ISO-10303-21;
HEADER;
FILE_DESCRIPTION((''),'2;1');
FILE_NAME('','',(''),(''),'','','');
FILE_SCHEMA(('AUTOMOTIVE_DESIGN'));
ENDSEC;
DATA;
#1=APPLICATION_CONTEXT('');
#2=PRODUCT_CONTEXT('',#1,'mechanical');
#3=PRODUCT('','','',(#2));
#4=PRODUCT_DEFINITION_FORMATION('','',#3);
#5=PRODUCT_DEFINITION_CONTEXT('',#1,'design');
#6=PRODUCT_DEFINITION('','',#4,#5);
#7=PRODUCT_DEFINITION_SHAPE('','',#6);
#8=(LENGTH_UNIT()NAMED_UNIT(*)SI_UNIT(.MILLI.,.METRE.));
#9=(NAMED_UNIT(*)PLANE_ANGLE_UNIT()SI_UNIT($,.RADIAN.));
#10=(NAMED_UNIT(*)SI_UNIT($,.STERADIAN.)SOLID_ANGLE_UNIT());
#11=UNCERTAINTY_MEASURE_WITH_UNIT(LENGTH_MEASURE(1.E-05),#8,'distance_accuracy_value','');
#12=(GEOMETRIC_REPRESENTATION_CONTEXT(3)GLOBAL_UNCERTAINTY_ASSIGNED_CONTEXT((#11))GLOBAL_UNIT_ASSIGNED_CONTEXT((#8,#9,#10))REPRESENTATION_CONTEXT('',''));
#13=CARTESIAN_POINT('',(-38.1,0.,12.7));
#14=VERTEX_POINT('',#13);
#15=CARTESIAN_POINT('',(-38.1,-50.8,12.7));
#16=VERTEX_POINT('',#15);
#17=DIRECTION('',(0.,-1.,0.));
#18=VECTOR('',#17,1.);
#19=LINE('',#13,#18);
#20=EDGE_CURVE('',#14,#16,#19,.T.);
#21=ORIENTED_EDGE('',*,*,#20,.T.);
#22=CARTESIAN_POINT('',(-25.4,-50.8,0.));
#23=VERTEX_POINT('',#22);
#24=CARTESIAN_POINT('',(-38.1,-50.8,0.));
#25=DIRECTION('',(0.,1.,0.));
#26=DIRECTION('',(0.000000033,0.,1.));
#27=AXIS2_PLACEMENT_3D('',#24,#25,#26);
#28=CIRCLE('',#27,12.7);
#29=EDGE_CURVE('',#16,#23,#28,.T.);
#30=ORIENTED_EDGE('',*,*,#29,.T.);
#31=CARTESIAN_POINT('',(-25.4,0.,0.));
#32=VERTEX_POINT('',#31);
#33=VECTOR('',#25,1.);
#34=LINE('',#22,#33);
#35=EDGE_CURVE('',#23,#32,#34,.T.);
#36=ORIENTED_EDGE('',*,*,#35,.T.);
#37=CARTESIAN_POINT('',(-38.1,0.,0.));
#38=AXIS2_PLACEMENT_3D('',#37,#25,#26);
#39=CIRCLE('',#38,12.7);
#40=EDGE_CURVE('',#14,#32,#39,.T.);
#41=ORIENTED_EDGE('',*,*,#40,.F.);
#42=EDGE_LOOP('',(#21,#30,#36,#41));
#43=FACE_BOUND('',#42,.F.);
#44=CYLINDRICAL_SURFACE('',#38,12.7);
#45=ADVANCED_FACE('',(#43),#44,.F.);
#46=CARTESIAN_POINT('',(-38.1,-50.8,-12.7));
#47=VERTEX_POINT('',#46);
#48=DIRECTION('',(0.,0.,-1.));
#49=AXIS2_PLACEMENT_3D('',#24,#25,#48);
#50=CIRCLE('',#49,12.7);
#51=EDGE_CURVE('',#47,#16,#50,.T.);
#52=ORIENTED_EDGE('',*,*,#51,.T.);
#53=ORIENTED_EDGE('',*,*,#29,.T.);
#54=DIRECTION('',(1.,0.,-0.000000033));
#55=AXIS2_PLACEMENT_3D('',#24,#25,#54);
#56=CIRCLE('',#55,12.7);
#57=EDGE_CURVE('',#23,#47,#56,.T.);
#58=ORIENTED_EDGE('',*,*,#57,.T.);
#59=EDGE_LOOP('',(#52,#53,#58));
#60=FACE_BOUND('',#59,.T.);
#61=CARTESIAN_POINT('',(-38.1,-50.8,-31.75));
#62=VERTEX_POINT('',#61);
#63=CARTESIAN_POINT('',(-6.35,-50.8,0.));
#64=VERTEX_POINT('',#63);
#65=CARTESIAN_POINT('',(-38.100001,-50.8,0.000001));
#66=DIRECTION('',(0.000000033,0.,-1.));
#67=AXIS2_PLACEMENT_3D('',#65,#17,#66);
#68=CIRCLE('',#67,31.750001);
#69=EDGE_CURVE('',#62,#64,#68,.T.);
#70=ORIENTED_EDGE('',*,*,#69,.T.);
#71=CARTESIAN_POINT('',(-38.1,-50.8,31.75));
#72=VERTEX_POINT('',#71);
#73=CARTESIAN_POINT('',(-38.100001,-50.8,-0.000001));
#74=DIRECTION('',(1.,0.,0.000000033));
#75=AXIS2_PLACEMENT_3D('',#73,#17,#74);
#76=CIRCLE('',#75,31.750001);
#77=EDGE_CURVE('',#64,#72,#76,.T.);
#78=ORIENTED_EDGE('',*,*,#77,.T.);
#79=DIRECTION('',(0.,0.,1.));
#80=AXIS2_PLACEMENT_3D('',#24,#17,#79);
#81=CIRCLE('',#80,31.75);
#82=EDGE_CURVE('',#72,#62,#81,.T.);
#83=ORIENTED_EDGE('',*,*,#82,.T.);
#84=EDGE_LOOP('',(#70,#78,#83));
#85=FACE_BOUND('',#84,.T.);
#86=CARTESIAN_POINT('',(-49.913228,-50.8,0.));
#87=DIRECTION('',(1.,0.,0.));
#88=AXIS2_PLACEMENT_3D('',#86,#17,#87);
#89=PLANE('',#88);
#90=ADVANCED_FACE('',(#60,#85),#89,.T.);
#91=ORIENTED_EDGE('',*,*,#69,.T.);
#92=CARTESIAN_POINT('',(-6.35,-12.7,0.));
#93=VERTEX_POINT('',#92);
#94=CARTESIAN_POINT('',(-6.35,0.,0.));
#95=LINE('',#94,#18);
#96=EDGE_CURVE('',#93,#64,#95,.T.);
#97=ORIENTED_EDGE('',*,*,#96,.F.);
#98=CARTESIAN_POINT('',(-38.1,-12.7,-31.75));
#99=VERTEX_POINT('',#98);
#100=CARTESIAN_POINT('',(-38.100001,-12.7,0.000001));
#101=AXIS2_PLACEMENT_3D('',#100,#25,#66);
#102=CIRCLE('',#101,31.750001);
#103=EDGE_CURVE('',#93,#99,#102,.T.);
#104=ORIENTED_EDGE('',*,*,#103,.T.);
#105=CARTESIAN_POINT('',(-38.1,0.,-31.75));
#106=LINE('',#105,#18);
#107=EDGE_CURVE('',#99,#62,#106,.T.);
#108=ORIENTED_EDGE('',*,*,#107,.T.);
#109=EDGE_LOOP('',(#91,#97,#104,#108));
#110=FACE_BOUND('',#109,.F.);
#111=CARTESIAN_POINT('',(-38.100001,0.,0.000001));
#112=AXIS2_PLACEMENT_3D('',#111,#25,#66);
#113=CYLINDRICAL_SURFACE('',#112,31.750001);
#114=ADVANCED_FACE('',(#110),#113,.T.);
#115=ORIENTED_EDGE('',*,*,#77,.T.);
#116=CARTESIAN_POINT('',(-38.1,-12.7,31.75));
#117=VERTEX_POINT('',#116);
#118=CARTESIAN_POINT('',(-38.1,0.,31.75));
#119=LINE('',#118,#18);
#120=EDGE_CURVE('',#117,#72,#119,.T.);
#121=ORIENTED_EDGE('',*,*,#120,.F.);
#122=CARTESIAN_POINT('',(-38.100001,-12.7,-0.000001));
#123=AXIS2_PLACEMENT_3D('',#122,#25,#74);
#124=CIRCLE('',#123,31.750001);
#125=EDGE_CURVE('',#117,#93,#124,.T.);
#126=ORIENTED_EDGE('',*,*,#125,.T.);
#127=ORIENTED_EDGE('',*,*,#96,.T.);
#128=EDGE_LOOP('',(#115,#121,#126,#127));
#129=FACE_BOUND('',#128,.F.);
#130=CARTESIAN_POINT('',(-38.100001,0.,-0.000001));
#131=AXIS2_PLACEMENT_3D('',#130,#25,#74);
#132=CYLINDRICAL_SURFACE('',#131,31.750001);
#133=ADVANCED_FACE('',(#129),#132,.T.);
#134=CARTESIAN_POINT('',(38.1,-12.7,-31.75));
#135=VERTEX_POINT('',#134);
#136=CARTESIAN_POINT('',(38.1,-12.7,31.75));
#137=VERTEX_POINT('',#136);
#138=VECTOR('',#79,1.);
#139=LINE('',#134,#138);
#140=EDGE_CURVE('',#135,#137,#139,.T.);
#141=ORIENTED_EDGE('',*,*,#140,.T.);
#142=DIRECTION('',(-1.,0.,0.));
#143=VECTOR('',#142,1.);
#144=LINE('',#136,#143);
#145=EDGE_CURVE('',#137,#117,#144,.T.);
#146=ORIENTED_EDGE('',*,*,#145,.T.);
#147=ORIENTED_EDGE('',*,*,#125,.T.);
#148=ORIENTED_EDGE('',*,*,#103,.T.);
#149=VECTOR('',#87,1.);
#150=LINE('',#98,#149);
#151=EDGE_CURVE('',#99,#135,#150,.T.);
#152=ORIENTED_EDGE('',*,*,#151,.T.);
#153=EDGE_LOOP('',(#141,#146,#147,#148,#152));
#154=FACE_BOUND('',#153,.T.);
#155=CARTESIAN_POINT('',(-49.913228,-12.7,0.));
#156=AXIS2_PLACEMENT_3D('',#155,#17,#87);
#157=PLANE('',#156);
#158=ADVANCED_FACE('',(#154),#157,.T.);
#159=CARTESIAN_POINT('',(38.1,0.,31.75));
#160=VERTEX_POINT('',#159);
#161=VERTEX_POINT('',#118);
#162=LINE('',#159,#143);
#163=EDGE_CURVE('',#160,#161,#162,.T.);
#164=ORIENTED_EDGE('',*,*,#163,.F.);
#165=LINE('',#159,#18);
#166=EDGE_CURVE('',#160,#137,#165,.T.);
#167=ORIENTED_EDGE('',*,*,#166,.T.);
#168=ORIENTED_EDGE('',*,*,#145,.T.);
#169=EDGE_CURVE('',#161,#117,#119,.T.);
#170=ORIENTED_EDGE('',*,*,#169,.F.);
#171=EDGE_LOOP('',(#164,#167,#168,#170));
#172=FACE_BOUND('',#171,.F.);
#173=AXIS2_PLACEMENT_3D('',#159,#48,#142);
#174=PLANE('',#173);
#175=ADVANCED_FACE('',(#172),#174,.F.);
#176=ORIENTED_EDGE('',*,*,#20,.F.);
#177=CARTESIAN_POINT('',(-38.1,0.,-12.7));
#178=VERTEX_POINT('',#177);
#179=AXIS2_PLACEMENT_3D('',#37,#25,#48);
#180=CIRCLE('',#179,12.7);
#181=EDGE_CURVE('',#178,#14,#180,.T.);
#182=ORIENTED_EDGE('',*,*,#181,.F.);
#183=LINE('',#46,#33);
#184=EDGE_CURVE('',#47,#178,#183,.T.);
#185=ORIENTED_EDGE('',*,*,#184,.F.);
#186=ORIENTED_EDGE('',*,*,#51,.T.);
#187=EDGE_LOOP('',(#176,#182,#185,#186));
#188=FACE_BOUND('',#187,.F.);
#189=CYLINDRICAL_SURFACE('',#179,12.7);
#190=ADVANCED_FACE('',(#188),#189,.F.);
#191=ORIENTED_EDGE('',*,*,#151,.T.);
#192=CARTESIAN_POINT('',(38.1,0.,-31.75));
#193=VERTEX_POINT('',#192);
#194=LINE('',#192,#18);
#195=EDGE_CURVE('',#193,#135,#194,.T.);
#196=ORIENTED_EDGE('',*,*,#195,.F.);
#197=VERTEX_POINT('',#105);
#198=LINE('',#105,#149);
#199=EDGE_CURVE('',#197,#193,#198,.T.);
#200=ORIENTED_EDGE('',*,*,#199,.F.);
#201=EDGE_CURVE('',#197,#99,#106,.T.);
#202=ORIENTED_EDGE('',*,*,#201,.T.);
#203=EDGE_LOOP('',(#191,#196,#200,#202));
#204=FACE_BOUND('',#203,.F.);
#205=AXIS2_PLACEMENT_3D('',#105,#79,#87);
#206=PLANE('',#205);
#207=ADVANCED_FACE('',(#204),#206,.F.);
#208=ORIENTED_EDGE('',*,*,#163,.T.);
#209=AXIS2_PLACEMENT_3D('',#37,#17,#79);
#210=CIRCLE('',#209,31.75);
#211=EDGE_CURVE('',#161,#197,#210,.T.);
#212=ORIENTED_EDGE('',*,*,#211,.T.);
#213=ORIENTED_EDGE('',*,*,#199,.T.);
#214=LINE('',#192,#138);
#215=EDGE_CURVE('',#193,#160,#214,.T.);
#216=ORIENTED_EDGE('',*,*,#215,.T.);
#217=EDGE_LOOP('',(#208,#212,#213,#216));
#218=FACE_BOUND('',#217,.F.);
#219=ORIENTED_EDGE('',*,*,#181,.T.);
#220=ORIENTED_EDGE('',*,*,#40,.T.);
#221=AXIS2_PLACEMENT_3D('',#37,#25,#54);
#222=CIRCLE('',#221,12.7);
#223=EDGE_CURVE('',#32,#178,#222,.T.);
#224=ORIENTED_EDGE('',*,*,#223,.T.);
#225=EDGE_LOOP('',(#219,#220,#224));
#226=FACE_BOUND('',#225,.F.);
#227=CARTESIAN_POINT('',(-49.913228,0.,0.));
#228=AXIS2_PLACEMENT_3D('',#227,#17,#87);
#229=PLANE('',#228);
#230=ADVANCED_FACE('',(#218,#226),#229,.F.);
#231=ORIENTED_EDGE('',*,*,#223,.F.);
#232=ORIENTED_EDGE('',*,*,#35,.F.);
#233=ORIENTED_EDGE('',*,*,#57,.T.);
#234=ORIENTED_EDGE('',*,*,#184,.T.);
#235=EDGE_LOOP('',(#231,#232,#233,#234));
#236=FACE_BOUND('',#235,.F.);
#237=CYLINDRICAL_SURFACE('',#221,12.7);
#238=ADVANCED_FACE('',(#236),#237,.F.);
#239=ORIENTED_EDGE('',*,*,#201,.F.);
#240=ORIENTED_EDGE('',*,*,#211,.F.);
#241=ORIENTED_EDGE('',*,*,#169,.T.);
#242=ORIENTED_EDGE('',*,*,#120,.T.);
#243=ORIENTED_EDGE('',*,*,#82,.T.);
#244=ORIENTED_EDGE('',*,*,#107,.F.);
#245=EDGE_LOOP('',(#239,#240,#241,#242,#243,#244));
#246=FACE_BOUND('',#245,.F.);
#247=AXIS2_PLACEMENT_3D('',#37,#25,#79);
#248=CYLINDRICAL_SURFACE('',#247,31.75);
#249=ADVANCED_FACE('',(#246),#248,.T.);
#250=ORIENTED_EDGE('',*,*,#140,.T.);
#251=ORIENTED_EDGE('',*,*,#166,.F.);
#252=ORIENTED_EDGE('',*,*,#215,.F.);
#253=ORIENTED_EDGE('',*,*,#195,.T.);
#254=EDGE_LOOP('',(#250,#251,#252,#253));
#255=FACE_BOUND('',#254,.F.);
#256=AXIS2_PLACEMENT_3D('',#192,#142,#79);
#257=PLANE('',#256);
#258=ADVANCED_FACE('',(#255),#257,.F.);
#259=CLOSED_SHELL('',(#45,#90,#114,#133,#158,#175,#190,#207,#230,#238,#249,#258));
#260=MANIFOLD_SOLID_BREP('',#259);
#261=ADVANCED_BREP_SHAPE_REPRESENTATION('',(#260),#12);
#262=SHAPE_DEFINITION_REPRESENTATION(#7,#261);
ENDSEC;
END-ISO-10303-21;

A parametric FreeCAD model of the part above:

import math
import FreeCAD as App
import Part
import Sketcher

V = App.Vector
Q = App.Units.Quantity

doc = App.newDocument("Part")
params = doc.addObject("Spreadsheet::Sheet", "Params")
for row, (alias, value) in enumerate([
    ("sketch1_radius", "0.5 in"),
    ("sketch1_width", "3 in"),
    ("sketch1_radius2", "1.25 in"),
    ("pad1_length", "0.5 in"),
    ("sketch2_radius", "0.5 in"),
    ("sketch2_radius2", "1.25 in"),
    ("pad2_length", "2 in"),
], start=1):
    params.set(f"A{row}", alias)
    params.set(f"B{row}", "=" + value)
    params.setAlias(f"B{row}", alias)

body = doc.addObject("PartDesign::Body", "Body")

# Sketch on XZ plane
sketch1 = body.newObject("Sketcher::SketchObject", "Sketch")
sketch1.AttachmentSupport = (doc.getObject("XZ_Plane"), [""])
sketch1.MapMode = "FlatFace"
sketch1.addGeometry([
    Part.ArcOfCircle(Part.Circle(V(-38, 0, 0), V(0, 0, 1), 32), math.radians(90), math.radians(270)),  # 0
    Part.LineSegment(V(-38, -32, 0), V(38, -32, 0)),  # 1
    Part.LineSegment(V(38, -32, 0), V(38, 32, 0)),  # 2
    Part.LineSegment(V(38, 32, 0), V(-38, 32, 0)),  # 3
    Part.ArcOfCircle(Part.Circle(V(-38, 0, 0), V(0, 0, 1), 13), math.radians(90), math.radians(270)),  # 4
    Part.ArcOfCircle(Part.Circle(V(-38, 0, 0), V(0, 0, 1), 13), math.radians(0), math.radians(90)),  # 5
    Part.ArcOfCircle(Part.Circle(V(-38, 0, 0), V(0, 0, 1), 13), math.radians(-90), math.radians(0)),  # 6
], False)
sketch1.addConstraint([
    Sketcher.Constraint("Tangent", 0, 2, 1, 1),
    Sketcher.Constraint("Coincident", 1, 2, 2, 1),
    Sketcher.Constraint("Coincident", 2, 2, 3, 1),
    Sketcher.Constraint("Tangent", 3, 2, 0, 1),
    Sketcher.Constraint("Tangent", 4, 1, 5, 2),
    Sketcher.Constraint("Tangent", 5, 1, 6, 2),
    Sketcher.Constraint("Tangent", 6, 1, 4, 2),
    Sketcher.Constraint("Horizontal", 1),
    Sketcher.Constraint("Vertical", 2),
    Sketcher.Constraint("Horizontal", 3),
    Sketcher.Constraint("Coincident", 4, 3, 0, 3),
    Sketcher.Constraint("Symmetric", 0, 2, 2, 2, -1, 1),
    Sketcher.Constraint("PointOnObject", 5, 1, -1),
    Sketcher.Constraint("Vertical", 3, 2, 4, 1),
    Sketcher.Constraint("Vertical", 4, 1, 6, 1),
    Sketcher.Constraint("Radius", 4, Q("0.5 in")),
    Sketcher.Constraint("DistanceX", 1, 1, 1, 2, Q("3 in")),
    Sketcher.Constraint("Radius", 0, Q("1.25 in")),
])
sketch1.setExpression("Constraints[15]", "Params.sketch1_radius")
sketch1.setExpression("Constraints[16]", "Params.sketch1_width")
sketch1.setExpression("Constraints[17]", "Params.sketch1_radius2")
pad1 = body.newObject("PartDesign::Pad", "Pad")
pad1.Profile = sketch1
pad1.setExpression("Length", "Params.pad1_length")

# Sketch on XZ plane
sketch2 = body.newObject("Sketcher::SketchObject", "Sketch001")
sketch2.AttachmentSupport = (doc.getObject("XZ_Plane"), [""])
sketch2.MapMode = "FlatFace"
sketch2.addGeometry([
    Part.ArcOfCircle(Part.Circle(V(-38, 0, 0), V(0, 0, 1), 32), math.radians(90), math.radians(270)),  # 0
    Part.ArcOfCircle(Part.Circle(V(-38, 0, 0), V(0, 0, 1), 32), math.radians(-90), math.radians(0)),  # 1
    Part.ArcOfCircle(Part.Circle(V(-38, 0, 0), V(0, 0, 1), 32), math.radians(0), math.radians(90)),  # 2
    Part.ArcOfCircle(Part.Circle(V(-38, 0, 0), V(0, 0, 1), 13), math.radians(90), math.radians(270)),  # 3
    Part.ArcOfCircle(Part.Circle(V(-38, 0, 0), V(0, 0, 1), 13), math.radians(0), math.radians(90)),  # 4
    Part.ArcOfCircle(Part.Circle(V(-38, 0, 0), V(0, 0, 1), 13), math.radians(-90), math.radians(0)),  # 5
], False)
sketch2.addConstraint([
    Sketcher.Constraint("Tangent", 0, 2, 1, 1),
    Sketcher.Constraint("Tangent", 1, 2, 2, 1),
    Sketcher.Constraint("Tangent", 2, 2, 0, 1),
    Sketcher.Constraint("Tangent", 3, 1, 4, 2),
    Sketcher.Constraint("Tangent", 4, 1, 5, 2),
    Sketcher.Constraint("Tangent", 5, 1, 3, 2),
    Sketcher.Constraint("Coincident", 3, 3, 0, 3),
    Sketcher.Constraint("Symmetric", 0, 2, 2, 2, -1),
    Sketcher.Constraint("PointOnObject", 1, 2, -1),
    Sketcher.Constraint("PointOnObject", 4, 1, -1),
    Sketcher.Constraint("Vertical", 5, 3, 0, 2),
    Sketcher.Constraint("Vertical", 2, 2, 3, 1),
    Sketcher.Constraint("Vertical", 3, 1, 5, 1),
    Sketcher.Constraint("Radius", 3, Q("0.5 in")),
    Sketcher.Constraint("Radius", 0, Q("1.25 in")),
    Sketcher.Constraint("DistanceX", 4, 1, -1, 1, Q("1 in")),
])
sketch2.setExpression("Constraints[13]", "Params.sketch2_radius")
sketch2.setExpression("Constraints[14]", "Params.sketch2_radius2")
pad2 = body.newObject("PartDesign::Pad", "Pad001")
pad2.Profile = sketch2
pad2.setExpression("Length", "Params.pad2_length")

doc.recompute()
